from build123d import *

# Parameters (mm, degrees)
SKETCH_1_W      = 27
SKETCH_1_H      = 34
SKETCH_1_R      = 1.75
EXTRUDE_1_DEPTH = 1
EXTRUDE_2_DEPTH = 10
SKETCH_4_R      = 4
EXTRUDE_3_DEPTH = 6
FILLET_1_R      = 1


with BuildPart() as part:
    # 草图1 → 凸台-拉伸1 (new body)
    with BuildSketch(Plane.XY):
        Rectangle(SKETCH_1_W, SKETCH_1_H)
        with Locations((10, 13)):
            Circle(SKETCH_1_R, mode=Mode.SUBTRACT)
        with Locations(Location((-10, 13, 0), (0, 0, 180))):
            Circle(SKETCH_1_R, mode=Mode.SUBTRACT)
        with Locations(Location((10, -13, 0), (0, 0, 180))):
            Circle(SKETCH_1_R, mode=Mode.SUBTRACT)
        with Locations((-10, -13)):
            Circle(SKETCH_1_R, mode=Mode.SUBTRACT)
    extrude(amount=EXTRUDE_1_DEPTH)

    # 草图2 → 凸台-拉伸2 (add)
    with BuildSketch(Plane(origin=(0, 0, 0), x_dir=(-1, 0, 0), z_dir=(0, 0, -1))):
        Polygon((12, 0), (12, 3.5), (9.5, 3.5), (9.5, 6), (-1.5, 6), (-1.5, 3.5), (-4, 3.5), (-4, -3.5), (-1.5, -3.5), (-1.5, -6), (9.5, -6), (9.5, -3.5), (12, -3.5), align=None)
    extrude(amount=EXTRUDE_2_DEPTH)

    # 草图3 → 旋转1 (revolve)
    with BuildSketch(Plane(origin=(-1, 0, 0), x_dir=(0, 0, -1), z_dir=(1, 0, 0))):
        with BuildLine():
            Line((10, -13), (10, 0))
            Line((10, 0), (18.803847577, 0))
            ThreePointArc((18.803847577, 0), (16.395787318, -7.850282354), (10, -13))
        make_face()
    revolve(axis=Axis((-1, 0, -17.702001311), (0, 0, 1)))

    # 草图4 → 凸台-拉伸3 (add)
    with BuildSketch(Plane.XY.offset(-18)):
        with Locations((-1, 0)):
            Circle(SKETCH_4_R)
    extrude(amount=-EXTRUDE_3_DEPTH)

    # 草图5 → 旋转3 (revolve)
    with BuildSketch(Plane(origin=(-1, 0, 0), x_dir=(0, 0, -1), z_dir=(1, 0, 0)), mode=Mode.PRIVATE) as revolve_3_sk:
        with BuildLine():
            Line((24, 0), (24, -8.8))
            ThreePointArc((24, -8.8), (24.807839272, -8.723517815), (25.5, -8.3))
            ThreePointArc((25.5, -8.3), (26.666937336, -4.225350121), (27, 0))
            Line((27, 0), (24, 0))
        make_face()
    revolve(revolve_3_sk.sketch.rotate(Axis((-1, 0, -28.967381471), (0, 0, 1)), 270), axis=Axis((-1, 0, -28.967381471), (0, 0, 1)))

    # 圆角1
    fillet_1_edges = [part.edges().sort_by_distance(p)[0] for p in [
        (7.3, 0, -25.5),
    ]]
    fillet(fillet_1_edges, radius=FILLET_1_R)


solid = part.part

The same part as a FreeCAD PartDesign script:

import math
import FreeCAD as App
import Part
import Sketcher
from FreeCAD import Vector
Q = App.Units.Quantity


def edges_at(feature, points):
    """Names of the edges that pass closest to the given points."""
    edges = feature.Shape.Edges
    near = lambda p: min(range(len(edges)), key=lambda i: edges[i].distToShape(Part.Vertex(*p))[0])
    return sorted({f"Edge{near(p) + 1}" for p in points})

doc = App.newDocument("Part")
params = doc.addObject("Spreadsheet::Sheet", "Params")
for row, (alias, value) in enumerate([
    ("sketch1_diameter", "3.5 mm"),
    ("sketch1_width", "27 mm"),
    ("sketch1_height", "34 mm"),
    ("pad1_length", "1 mm"),
    ("sketch2_width", "11 mm"),
    ("sketch2_height", "7 mm"),
    ("sketch2_width2", "2.5 mm"),
    ("pad2_length", "10 mm"),
    ("sketch3_radius", "14 mm"),
    ("sketch3_width", "13 mm"),
    ("revolution_angle", "360 deg"),
    ("sketch4_diameter", "8 mm"),
    ("pad3_length", "6 mm"),
    ("sketch5_radius", "1.8 mm"),
    ("sketch5_radius2", "21.2 mm"),
    ("sketch5_height", "3 mm"),
    ("sketch5_width", "8.8 mm"),
    ("revolution2_angle", "360 deg"),
    ("fillet_radius", "1 mm"),
], start=1):
    params.set(f"A{row}", alias)
    params.set(f"B{row}", "=" + value)
    params.setAlias(f"B{row}", alias)

body = doc.addObject("PartDesign::Body", "Body")

# Sketch on XY plane
sketch1 = body.newObject("Sketcher::SketchObject", "Sketch")
sketch1.AttachmentSupport = (doc.getObject("XY_Plane"), [""])
sketch1.MapMode = "FlatFace"
sketch1.addGeometry(Part.LineSegment(Vector(-13.5, 17, 0), Vector(-13.5, -17, 0)), False)
sketch1.addGeometry(Part.LineSegment(Vector(-13.5, -17, 0), Vector(13.5, -17, 0)), False)
sketch1.addGeometry(Part.LineSegment(Vector(13.5, -17, 0), Vector(13.5, 17, 0)), False)
sketch1.addGeometry(Part.LineSegment(Vector(13.5, 17, 0), Vector(-13.5, 17, 0)), False)
sketch1.addGeometry(Part.Circle(Vector(-10, -13, 0), Vector(0, 0, 1), 1.8), False)
sketch1.addGeometry(Part.Circle(Vector(10, -13, 0), Vector(0, 0, 1), 1.8), False)
sketch1.addGeometry(Part.Circle(Vector(-10, 13, 0), Vector(0, 0, 1), 1.8), False)
sketch1.addGeometry(Part.Circle(Vector(10, 13, 0), Vector(0, 0, 1), 1.8), False)
sketch1.addConstraint(Sketcher.Constraint("Coincident", 0, 2, 1, 1))
sketch1.addConstraint(Sketcher.Constraint("Coincident", 1, 2, 2, 1))
sketch1.addConstraint(Sketcher.Constraint("Coincident", 2, 2, 3, 1))
sketch1.addConstraint(Sketcher.Constraint("Coincident", 3, 2, 0, 1))
sketch1.addConstraint(Sketcher.Constraint("Vertical", 0))
sketch1.addConstraint(Sketcher.Constraint("Horizontal", 1))
sketch1.addConstraint(Sketcher.Constraint("Vertical", 2))
sketch1.addConstraint(Sketcher.Constraint("Horizontal", 3))
sketch1.addConstraint(Sketcher.Constraint("Equal", 4, 5))
sketch1.addConstraint(Sketcher.Constraint("Equal", 5, 6))
sketch1.addConstraint(Sketcher.Constraint("Equal", 6, 7))
sketch1.addConstraint(Sketcher.Constraint("Symmetric", 5, 3, 6, 3, -1, 1))
sketch1.addConstraint(Sketcher.Constraint("Symmetric", 4, 3, 7, 3, -1, 1))
sketch1.addConstraint(Sketcher.Constraint("Symmetric", 0, 2, 2, 2, -1, 1))
sketch1.addConstraint(Sketcher.Constraint("Symmetric", 4, 3, 5, 3, -2))
sketch1.addConstraint(Sketcher.Constraint("Diameter", 4, Q("3.5 mm")))
sketch1.addConstraint(Sketcher.Constraint("DistanceX", 1, 1, 1, 2, Q("27 mm")))
sketch1.addConstraint(Sketcher.Constraint("DistanceY", 0, 2, 0, 1, Q("34 mm")))
sketch1.addConstraint(Sketcher.Constraint("DistanceX", 4, 3, -1, 1, Q("10 mm")))
sketch1.addConstraint(Sketcher.Constraint("DistanceY", 4, 3, -1, 1, Q("13 mm")))
sketch1.setExpression("Constraints[15]", "Params.sketch1_diameter")
sketch1.setExpression("Constraints[16]", "Params.sketch1_width")
sketch1.setExpression("Constraints[17]", "Params.sketch1_height")
pad1 = body.newObject("PartDesign::Pad", "Pad")
pad1.Profile = sketch1
pad1.setExpression("Length", "Params.pad1_length")

# Sketch on XY plane
sketch2 = body.newObject("Sketcher::SketchObject", "Sketch001")
sketch2.AttachmentSupport = (doc.getObject("XY_Plane"), [""])
sketch2.MapMode = "FlatFace"
sketch2.addGeometry(Part.LineSegment(Vector(-12, 3.5, 0), Vector(-9.5, 3.5, 0)), False)
sketch2.addGeometry(Part.LineSegment(Vector(-9.5, 3.5, 0), Vector(-9.5, 6, 0)), False)
sketch2.addGeometry(Part.LineSegment(Vector(-9.5, 6, 0), Vector(1.5, 6, 0)), False)
sketch2.addGeometry(Part.LineSegment(Vector(1.5, 6, 0), Vector(1.5, 3.5, 0)), False)
sketch2.addGeometry(Part.LineSegment(Vector(1.5, 3.5, 0), Vector(4, 3.5, 0)), False)
sketch2.addGeometry(Part.LineSegment(Vector(4, 3.5, 0), Vector(4, -3.5, 0)), False)
sketch2.addGeometry(Part.LineSegment(Vector(4, -3.5, 0), Vector(1.5, -3.5, 0)), False)
sketch2.addGeometry(Part.LineSegment(Vector(1.5, -3.5, 0), Vector(1.5, -6, 0)), False)
sketch2.addGeometry(Part.LineSegment(Vector(1.5, -6, 0), Vector(-9.5, -6, 0)), False)
sketch2.addGeometry(Part.LineSegment(Vector(-9.5, -6, 0), Vector(-9.5, -3.5, 0)), False)
sketch2.addGeometry(Part.LineSegment(Vector(-9.5, -3.5, 0), Vector(-12, -3.5, 0)), False)
sketch2.addGeometry(Part.LineSegment(Vector(-12, -3.5, 0), Vector(-12, 3.5, 0)), False)
sketch2.addConstraint(Sketcher.Constraint("Coincident", 0, 2, 1, 1))
sketch2.addConstraint(Sketcher.Constraint("Coincident", 1, 2, 2, 1))
sketch2.addConstraint(Sketcher.Constraint("Coincident", 2, 2, 3, 1))
sketch2.addConstraint(Sketcher.Constraint("Coincident", 3, 2, 4, 1))
sketch2.addConstraint(Sketcher.Constraint("Coincident", 4, 2, 5, 1))
sketch2.addConstraint(Sketcher.Constraint("Coincident", 5, 2, 6, 1))
sketch2.addConstraint(Sketcher.Constraint("Coincident", 6, 2, 7, 1))
sketch2.addConstraint(Sketcher.Constraint("Coincident", 7, 2, 8, 1))
sketch2.addConstraint(Sketcher.Constraint("Coincident", 8, 2, 9, 1))
sketch2.addConstraint(Sketcher.Constraint("Coincident", 9, 2, 10, 1))
sketch2.addConstraint(Sketcher.Constraint("Coincident", 10, 2, 11, 1))
sketch2.addConstraint(Sketcher.Constraint("Coincident", 11, 2, 0, 1))
sketch2.addConstraint(Sketcher.Constraint("Horizontal", 0))
sketch2.addConstraint(Sketcher.Constraint("Vertical", 1))
sketch2.addConstraint(Sketcher.Constraint("Horizontal", 2))
sketch2.addConstraint(Sketcher.Constraint("Vertical", 3))
sketch2.addConstraint(Sketcher.Constraint("Horizontal", 4))
sketch2.addConstraint(Sketcher.Constraint("Vertical", 5))
sketch2.addConstraint(Sketcher.Constraint("Horizontal", 6))
sketch2.addConstraint(Sketcher.Constraint("Vertical", 7))
sketch2.addConstraint(Sketcher.Constraint("Horizontal", 8))
sketch2.addConstraint(Sketcher.Constraint("Vertical", 9))
sketch2.addConstraint(Sketcher.Constraint("Horizontal", 10))
sketch2.addConstraint(Sketcher.Constraint("Vertical", 11))
sketch2.addConstraint(Sketcher.Constraint("Symmetric", 3, 2, 6, 2, -1))
sketch2.addConstraint(Sketcher.Constraint("Symmetric", 1, 2, 8, 2, -1))
sketch2.addConstraint(Sketcher.Constraint("Horizontal", 0, 2, 3, 2))
sketch2.addConstraint(Sketcher.Constraint("Horizontal", 6, 2, 9, 2))
sketch2.addConstraint(Sketcher.Constraint("Equal", 0, 4))
sketch2.addConstraint(Sketcher.Constraint("Equal", 10, 1))
sketch2.addConstraint(Sketcher.Constraint("DistanceX", 2, 1, 2, 2, Q("11 mm")))
sketch2.addConstraint(Sketcher.Constraint("DistanceY", 5, 2, 5, 1, Q("7 mm")))
sketch2.addConstraint(Sketcher.Constraint("DistanceX", 0, 1, 0, 2, Q("2.5 mm")))
sketch2.addConstraint(Sketcher.Constraint("DistanceX", -1, 1, 4, 2, Q("4 mm")))
sketch2.setExpression("Constraints[30]", "Params.sketch2_width")
sketch2.setExpression("Constraints[31]", "Params.sketch2_height")
sketch2.setExpression("Constraints[32]", "Params.sketch2_width2")
pad2 = body.newObject("PartDesign::Pad", "Pad001")
pad2.Profile = sketch2
pad2.setExpression("Length", "Params.pad2_length")
pad2.Reversed = True

# Sketch on YZ plane
sketch3 = body.newObject("Sketcher::SketchObject", "Sketch002")
sketch3.AttachmentSupport = (doc.getObject("YZ_Plane"), [""])
sketch3.MapMode = "FlatFace"
sketch3.AttachmentOffset = App.Placement(Vector(0, 0, -1), App.Rotation())
sketch3.addGeometry(Part.LineSegment(Vector(0, -10, 0), Vector(-13, -10, 0)), False)
sketch3.addGeometry(Part.ArcOfCircle(Part.Circle(Vector(0, -5, 0), Vector(0, 0, 1), 14), math.radians(-158), math.radians(-90)), False)
sketch3.addGeometry(Part.LineSegment(Vector(0, -19, 0), Vector(0, -10, 0)), False)
sketch3.addConstraint(Sketcher.Constraint("Coincident", 0, 2, 1, 1))
sketch3.addConstraint(Sketcher.Constraint("Coincident", 1, 2, 2, 1))
sketch3.addConstraint(Sketcher.Constraint("Coincident", 2, 2, 0, 1))
sketch3.addConstraint(Sketcher.Constraint("Horizontal", 0))
sketch3.addConstraint(Sketcher.Constraint("Vertical", 2))
sketch3.addConstraint(Sketcher.Constraint("PointOnObject", 1, 3, -2))
sketch3.addConstraint(Sketcher.Constraint("PointOnObject", 1, 2, -2))
sketch3.addConstraint(Sketcher.Constraint("Radius", 1, Q("14 mm")))
sketch3.addConstraint(Sketcher.Constraint("DistanceX", 0, 2, 0, 1, Q("13 mm")))
sketch3.addConstraint(Sketcher.Constraint("DistanceY", 0, 2, -1, 1, Q("10 mm")))
sketch3.setExpression("Constraints[7]", "Params.sketch3_radius")
sketch3.setExpression("Constraints[8]", "Params.sketch3_width")
revolution = body.newObject("PartDesign::Revolution", "Revolution")
revolution.Profile = sketch3
revolution.ReferenceAxis = (sketch3, ["V_Axis"])
revolution.setExpression("Angle", "Params.revolution_angle")

# Sketch on XY plane
sketch4 = body.newObject("Sketcher::SketchObject", "Sketch003")
sketch4.AttachmentSupport = (doc.getObject("XY_Plane"), [""])
sketch4.MapMode = "FlatFace"
sketch4.AttachmentOffset = App.Placement(Vector(0, 0, -18), App.Rotation())
sketch4.addGeometry(Part.Circle(Vector(-1, 0, 0), Vector(0, 0, 1), 4), False)
sketch4.addConstraint(Sketcher.Constraint("PointOnObject", 0, 3, -1))
sketch4.addConstraint(Sketcher.Constraint("Diameter", 0, Q("8 mm")))
sketch4.addConstraint(Sketcher.Constraint("DistanceX", 0, 3, -1, 1, Q("1 mm")))
sketch4.setExpression("Constraints[1]", "Params.sketch4_diameter")
pad3 = body.newObject("PartDesign::Pad", "Pad002")
pad3.Profile = sketch4
pad3.setExpression("Length", "Params.pad3_length")
pad3.Reversed = True

# Sketch on YZ plane
sketch5 = body.newObject("Sketcher::SketchObject", "Sketch004")
sketch5.AttachmentSupport = (doc.getObject("YZ_Plane"), [""])
sketch5.MapMode = "FlatFace"
sketch5.AttachmentOffset = App.Placement(Vector(0, 0, -1), App.Rotation())
sketch5.addGeometry(Part.LineSegment(Vector(0, -24, 0), Vector(-8.8, -24, 0)), False)
sketch5.addGeometry(Part.ArcOfCircle(Part.Circle(Vector(-7, -24.2, 0), Vector(0, 0, 1), 1.8), math.radians(172), math.radians(224)), False)
sketch5.addGeometry(Part.ArcOfCircle(Part.Circle(Vector(-0.5, -5.8, 0), Vector(0, 0, 1), 21.2), math.radians(-112), math.radians(-89)), False)
sketch5.addGeometry(Part.LineSegment(Vector(0, -27, 0), Vector(0, -24, 0)), False)
sketch5.addConstraint(Sketcher.Constraint("Coincident", 0, 2, 1, 1))
sketch5.addConstraint(Sketcher.Constraint("Coincident", 1, 2, 2, 1))
sketch5.addConstraint(Sketcher.Constraint("Coincident", 2, 2, 3, 1))
sketch5.addConstraint(Sketcher.Constraint("Coincident", 3, 2, 0, 1))
sketch5.addConstraint(Sketcher.Constraint("Horizontal", 0))
sketch5.addConstraint(Sketcher.Constraint("Vertical", 3))
sketch5.addConstraint(Sketcher.Constraint("PointOnObject", 2, 2, -2))
sketch5.addConstraint(Sketcher.Constraint("Radius", 1, Q("1.8 mm")))
sketch5.addConstraint(Sketcher.Constraint("Radius", 2, Q("21.2 mm")))
sketch5.addConstraint(Sketcher.Constraint("DistanceY", 3, 1, 3, 2, Q("3 mm")))
sketch5.addConstraint(Sketcher.Constraint("DistanceX", 0, 2, 0, 1, Q("8.8 mm")))
sketch5.addConstraint(Sketcher.Constraint("DistanceY", 0, 2, -1, 1, Q("24 mm")))
sketch5.addConstraint(Sketcher.Constraint("DistanceX", 1, 2, -1, 1, Q("8.3 mm")))
sketch5.addConstraint(Sketcher.Constraint("DistanceY", 1, 2, -1, 1, Q("25.5 mm")))
sketch5.setExpression("Constraints[7]", "Params.sketch5_radius")
sketch5.setExpression("Constraints[8]", "Params.sketch5_radius2")
sketch5.setExpression("Constraints[9]", "Params.sketch5_height")
sketch5.setExpression("Constraints[10]", "Params.sketch5_width")
revolution2 = body.newObject("PartDesign::Revolution", "Revolution001")
revolution2.Profile = sketch5
revolution2.ReferenceAxis = (sketch5, ["V_Axis"])
revolution2.setExpression("Angle", "Params.revolution2_angle")
doc.recompute()

fillet = body.newObject("PartDesign::Fillet", "Fillet")
fillet.Base = (revolution2, edges_at(revolution2, [(7.3, 0, -25.5)]))
fillet.setExpression("Radius", "Params.fillet_radius")

doc.recompute()
